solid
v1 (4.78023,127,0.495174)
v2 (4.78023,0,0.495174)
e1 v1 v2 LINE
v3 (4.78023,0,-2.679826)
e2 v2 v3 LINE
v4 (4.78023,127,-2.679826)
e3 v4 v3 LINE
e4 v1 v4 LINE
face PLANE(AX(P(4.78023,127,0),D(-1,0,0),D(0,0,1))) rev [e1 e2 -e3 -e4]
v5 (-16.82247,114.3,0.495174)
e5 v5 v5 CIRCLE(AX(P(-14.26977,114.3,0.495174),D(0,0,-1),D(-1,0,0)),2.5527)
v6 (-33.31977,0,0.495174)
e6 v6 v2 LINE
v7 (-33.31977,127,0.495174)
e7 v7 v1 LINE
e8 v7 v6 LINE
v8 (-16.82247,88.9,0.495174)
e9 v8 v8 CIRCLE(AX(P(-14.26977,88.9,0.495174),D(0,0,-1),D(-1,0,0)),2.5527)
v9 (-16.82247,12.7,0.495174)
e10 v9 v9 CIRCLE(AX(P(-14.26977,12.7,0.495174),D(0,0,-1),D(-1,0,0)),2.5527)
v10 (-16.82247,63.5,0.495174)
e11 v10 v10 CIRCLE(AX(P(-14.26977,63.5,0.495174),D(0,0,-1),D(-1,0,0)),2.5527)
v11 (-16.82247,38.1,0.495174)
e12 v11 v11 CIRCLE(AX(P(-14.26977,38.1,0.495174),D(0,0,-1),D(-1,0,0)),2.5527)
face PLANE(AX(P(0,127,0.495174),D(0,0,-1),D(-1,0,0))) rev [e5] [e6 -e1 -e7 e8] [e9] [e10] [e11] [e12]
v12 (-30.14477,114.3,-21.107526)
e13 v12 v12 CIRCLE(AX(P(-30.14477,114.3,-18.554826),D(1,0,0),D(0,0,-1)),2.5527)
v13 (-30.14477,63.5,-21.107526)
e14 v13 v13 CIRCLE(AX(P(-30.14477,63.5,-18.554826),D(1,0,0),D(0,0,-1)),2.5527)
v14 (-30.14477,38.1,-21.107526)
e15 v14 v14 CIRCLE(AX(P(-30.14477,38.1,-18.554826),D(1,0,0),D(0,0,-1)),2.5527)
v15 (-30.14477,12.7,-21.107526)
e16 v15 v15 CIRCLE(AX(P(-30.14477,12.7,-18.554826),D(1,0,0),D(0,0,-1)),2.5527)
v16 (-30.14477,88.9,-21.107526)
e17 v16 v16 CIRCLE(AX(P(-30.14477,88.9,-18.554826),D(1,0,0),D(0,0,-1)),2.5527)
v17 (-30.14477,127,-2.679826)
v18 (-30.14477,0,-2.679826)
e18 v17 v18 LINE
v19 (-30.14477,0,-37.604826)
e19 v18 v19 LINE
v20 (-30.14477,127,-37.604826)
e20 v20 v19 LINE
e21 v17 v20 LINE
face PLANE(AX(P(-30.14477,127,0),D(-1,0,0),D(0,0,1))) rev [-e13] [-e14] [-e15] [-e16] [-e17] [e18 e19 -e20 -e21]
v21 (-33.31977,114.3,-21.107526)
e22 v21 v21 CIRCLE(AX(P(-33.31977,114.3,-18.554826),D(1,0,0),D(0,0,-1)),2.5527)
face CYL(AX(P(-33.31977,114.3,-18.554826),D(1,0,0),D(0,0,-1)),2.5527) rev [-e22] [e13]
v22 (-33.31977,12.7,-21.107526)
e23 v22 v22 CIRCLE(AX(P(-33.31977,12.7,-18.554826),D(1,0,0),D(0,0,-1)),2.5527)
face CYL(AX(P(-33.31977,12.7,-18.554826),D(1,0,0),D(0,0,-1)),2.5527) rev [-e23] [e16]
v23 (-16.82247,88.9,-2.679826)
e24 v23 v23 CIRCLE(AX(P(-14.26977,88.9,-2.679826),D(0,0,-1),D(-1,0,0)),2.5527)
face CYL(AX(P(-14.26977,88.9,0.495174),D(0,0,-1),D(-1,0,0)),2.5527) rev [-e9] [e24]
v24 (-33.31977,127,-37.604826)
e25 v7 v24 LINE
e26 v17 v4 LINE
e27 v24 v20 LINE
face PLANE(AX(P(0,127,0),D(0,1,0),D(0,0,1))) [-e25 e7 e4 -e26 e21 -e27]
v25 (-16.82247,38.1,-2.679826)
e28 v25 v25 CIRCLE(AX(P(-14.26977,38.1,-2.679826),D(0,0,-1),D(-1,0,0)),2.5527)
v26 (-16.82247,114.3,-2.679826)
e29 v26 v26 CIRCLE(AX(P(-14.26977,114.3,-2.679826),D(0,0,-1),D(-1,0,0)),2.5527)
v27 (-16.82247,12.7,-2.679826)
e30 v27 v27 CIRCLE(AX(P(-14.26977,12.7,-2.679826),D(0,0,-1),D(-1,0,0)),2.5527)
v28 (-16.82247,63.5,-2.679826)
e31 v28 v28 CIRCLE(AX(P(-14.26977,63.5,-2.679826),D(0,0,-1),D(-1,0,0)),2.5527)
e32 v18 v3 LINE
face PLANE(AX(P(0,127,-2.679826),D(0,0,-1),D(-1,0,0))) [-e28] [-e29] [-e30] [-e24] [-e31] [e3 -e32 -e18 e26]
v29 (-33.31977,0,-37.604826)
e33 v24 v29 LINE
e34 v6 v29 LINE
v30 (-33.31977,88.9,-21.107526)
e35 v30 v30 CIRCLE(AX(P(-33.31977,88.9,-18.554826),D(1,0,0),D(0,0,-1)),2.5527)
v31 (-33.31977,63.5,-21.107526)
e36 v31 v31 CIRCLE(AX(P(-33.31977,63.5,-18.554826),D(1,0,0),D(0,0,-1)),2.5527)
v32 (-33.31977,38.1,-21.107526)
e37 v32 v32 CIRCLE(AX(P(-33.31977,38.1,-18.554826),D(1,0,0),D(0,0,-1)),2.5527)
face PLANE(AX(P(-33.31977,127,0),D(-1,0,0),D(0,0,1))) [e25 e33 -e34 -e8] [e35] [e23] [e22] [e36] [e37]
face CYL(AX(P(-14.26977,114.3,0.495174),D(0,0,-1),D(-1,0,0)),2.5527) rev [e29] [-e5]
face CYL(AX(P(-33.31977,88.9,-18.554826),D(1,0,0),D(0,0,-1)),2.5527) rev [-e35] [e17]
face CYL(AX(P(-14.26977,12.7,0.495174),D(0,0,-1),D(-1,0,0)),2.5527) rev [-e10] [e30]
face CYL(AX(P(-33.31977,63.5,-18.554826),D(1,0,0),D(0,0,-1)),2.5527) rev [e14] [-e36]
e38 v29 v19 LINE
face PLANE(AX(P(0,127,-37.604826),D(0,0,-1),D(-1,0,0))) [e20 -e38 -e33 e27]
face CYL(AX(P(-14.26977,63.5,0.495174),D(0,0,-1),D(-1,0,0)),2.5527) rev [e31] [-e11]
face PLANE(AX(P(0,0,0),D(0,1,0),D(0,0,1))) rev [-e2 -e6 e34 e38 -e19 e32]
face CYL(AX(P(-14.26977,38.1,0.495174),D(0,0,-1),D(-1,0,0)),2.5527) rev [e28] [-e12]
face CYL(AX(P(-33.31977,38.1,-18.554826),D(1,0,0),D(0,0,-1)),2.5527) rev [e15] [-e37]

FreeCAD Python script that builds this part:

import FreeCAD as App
import Part
import Sketcher
from FreeCAD import Vector
Q = App.Units.Quantity


def add_polygon(sketch, points):
    """Adds a closed chain of lines whose ends are joined by coincident constraints."""
    first, n = sketch.GeometryCount, len(points)
    for a, b in zip(points, points[1:] + points[:1]):
        sketch.addGeometry(Part.LineSegment(App.Vector(*a, 0), App.Vector(*b, 0)), False)
    for i in range(n):
        sketch.addConstraint(Sketcher.Constraint("Coincident", first + i, 2, first + (i + 1) % n, 1))

doc = App.newDocument("Part")
body = doc.addObject("PartDesign::Body", "Body")

sketch1 = body.newObject("Sketcher::SketchObject", "Sketch")
sketch1.AttachmentSupport = (doc.getObject("XZ_Plane"), [""])
sketch1.MapMode = "FlatFace"
add_polygon(sketch1, [(-33.31977, -37.604826), (-33.31977, 0.495174), (4.78023, 0.495174), (4.78023, -2.679826), (-30.14477, -2.679826), (-30.14477, -37.604826)])
sketch1.addConstraint([
    Sketcher.Constraint("Vertical", 0),
    Sketcher.Constraint("Horizontal", 1),
    Sketcher.Constraint("Vertical", 2),
    Sketcher.Constraint("Horizontal", 3),
    Sketcher.Constraint("Vertical", 4),
    Sketcher.Constraint("Horizontal", 5),
    Sketcher.Constraint("Equal", 1, 0),
    Sketcher.Constraint("Equal", 5, 2),
    Sketcher.Constraint("DistanceX", 1, 1, 1, 2, Q("1.5 in")),
    Sketcher.Constraint("DistanceX", 3, 2, 3, 1, Q("1.375 in")),
    Sketcher.Constraint("DistanceX", 0, 2, -1, 1, Q("33.31977 mm")),
    Sketcher.Constraint("DistanceY", -1, 1, 0, 2, Q("0.495174 mm")),
])
pad1 = body.newObject("PartDesign::Pad", "Pad")
pad1.Profile = sketch1
pad1.Length = Q("5 in")
pad1.Reversed = True

sketch2 = body.newObject("Sketcher::SketchObject", "Sketch001")
sketch2.AttachmentSupport = (doc.getObject("YZ_Plane"), [""])
sketch2.MapMode = "FlatFace"
sketch2.AttachmentOffset = App.Placement(Vector(0, 0, -30.14477), App.Rotation())
sketch2.addGeometry(Part.Circle(Vector(12.7, -18.554826, 0), Vector(0, 0, 1), 2.5527), False)
sketch2.addConstraint([
    Sketcher.Constraint("Diameter", 0, Q("0.201 in")),
    Sketcher.Constraint("DistanceX", -1, 1, 0, 3, Q("0.5 in")),
    Sketcher.Constraint("DistanceY", 0, 3, -1, 1, Q("18.554826 mm")),
])
pocket1 = body.newObject("PartDesign::Pocket", "Pocket")
pocket1.Profile = sketch2
pocket1.Type = "ThroughAll"
doc.recompute()

linearpattern = body.newObject("PartDesign::LinearPattern", "LinearPattern")
linearpattern.Originals = [pocket1]
linearpattern.Direction = (doc.getObject("Y_Axis"), [""])
linearpattern.Mode = "offset"
linearpattern.Offset = Q("1 in")
linearpattern.Occurrences = 5
body.Tip = linearpattern

sketch3 = body.newObject("Sketcher::SketchObject", "Sketch002")
sketch3.AttachmentSupport = (doc.getObject("XY_Plane"), [""])
sketch3.MapMode = "FlatFace"
sketch3.AttachmentOffset = App.Placement(Vector(0, 0, -2.679826), App.Rotation())
sketch3.addGeometry(Part.Circle(Vector(-14.26977, 12.7, 0), Vector(0, 0, 1), 2.5527), False)
sketch3.addConstraint([
    Sketcher.Constraint("Diameter", 0, Q("0.201 in")),
    Sketcher.Constraint("DistanceY", -1, 1, 0, 3, Q("0.5 in")),
    Sketcher.Constraint("DistanceX", 0, 3, -1, 1, Q("14.26977 mm")),
])
pocket2 = body.newObject("PartDesign::Pocket", "Pocket001")
pocket2.Profile = sketch3
pocket2.Type = "ThroughAll"
pocket2.Reversed = True
doc.recompute()

linearpattern2 = body.newObject("PartDesign::LinearPattern", "LinearPattern001")
linearpattern2.Originals = [pocket2]
linearpattern2.Direction = (doc.getObject("Y_Axis"), [""])
linearpattern2.Mode = "offset"
linearpattern2.Offset = Q("1 in")
linearpattern2.Occurrences = 5
body.Tip = linearpattern2

doc.recompute()
